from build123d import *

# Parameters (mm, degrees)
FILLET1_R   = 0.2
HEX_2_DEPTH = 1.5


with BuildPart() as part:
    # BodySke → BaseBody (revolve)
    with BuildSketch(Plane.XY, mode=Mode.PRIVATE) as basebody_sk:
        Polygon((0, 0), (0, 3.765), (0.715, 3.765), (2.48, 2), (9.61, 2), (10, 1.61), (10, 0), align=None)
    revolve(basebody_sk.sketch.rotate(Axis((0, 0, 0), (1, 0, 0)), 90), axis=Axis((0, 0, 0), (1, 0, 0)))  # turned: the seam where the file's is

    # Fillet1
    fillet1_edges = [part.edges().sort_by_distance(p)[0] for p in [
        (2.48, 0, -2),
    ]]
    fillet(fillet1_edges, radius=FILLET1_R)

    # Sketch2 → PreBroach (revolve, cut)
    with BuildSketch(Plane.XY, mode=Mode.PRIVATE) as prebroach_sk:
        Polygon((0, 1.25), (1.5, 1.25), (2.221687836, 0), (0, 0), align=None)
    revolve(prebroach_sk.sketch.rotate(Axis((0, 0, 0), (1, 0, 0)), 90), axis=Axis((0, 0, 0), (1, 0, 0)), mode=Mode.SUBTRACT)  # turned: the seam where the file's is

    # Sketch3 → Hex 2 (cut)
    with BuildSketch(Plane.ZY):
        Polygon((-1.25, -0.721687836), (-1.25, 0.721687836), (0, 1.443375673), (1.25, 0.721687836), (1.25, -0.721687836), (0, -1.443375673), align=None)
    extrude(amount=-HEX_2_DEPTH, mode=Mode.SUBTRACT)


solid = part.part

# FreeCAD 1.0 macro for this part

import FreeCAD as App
import Part
import Sketcher

V = App.Vector
Q = App.Units.Quantity


def edges_at(feature, points):
    """Names of the edges that pass closest to the given points."""
    edges = feature.Shape.Edges
    near = lambda p: min(range(len(edges)), key=lambda i: edges[i].distToShape(Part.Vertex(*p))[0])
    return sorted({f"Edge{near(p) + 1}" for p in points})


def add_polygon(sketch, points):
    """Adds a closed chain of lines whose ends are joined by coincident constraints."""
    first, n = sketch.GeometryCount, len(points)
    for a, b in zip(points, points[1:] + points[:1]):
        sketch.addGeometry(Part.LineSegment(App.Vector(*a, 0), App.Vector(*b, 0)), False)
    for i in range(n):
        sketch.addConstraint(Sketcher.Constraint("Coincident", first + i, 2, first + (i + 1) % n, 1))

doc = App.newDocument("Part")
body = doc.addObject("PartDesign::Body", "Body")

# Sketch on XY plane
sketch1 = doc.addObject("Sketcher::SketchObject", "Sketch")
body.addObject(sketch1)
sketch1.AttachmentSupport = (doc.XY_Plane, [""])
sketch1.MapMode = "FlatFace"
add_polygon(sketch1, [(0, 3.8), (0, 0), (10, 0), (10, 1.6), (9.6, 2), (2.5, 2), (0.7, 3.8)])  # lines 0-6
sketch1.addConstraint(Sketcher.Constraint("Vertical", 0))
sketch1.addConstraint(Sketcher.Constraint("Horizontal", 1))
sketch1.addConstraint(Sketcher.Constraint("Vertical", 2))
sketch1.addConstraint(Sketcher.Constraint("Horizontal", 4))
sketch1.addConstraint(Sketcher.Constraint("Horizontal", 6))
sketch1.addConstraint(Sketcher.Constraint("Coincident", 0, 2, -1, 1))
sketch1.addConstraint(Sketcher.Constraint("Parallel", 3, 5))
sketch1.addConstraint(Sketcher.Constraint("DistanceX", 1, 1, 1, 2, Q("10 mm")))
sketch1.addConstraint(Sketcher.Constraint("Angle", 3, Q("135 deg")))
sketch1.addConstraint(Sketcher.Constraint("DistanceY", -1, 1, 3, 2, Q("2 mm")))
sketch1.addConstraint(Sketcher.Constraint("DistanceX", 4, 2, 4, 1, Q("7.13 mm")))
sketch1.addConstraint(Sketcher.Constraint("DistanceY", 2, 1, 2, 2, Q("1.61 mm")))
sketch1.addConstraint(Sketcher.Constraint("DistanceX", 6, 2, 6, 1, Q("0.715 mm")))
revolution = doc.addObject("PartDesign::Revolution", "Revolution")
body.addObject(revolution)
revolution.Profile = sketch1
revolution.ReferenceAxis = (sketch1, ["H_Axis"])
revolution.Angle = 360
doc.recompute()

fillet = doc.addObject("PartDesign::Fillet", "Fillet")
body.addObject(fillet)
fillet.Base = (revolution, edges_at(revolution, [(2.48, 0, -2)]))
fillet.Radius = 0.2

# Sketch on XY plane
sketch2 = doc.addObject("Sketcher::SketchObject", "Sketch001")
body.addObject(sketch2)
sketch2.AttachmentSupport = (doc.XY_Plane, [""])
sketch2.MapMode = "FlatFace"
add_polygon(sketch2, [(1.5, 1.2), (0, 1.2), (0, 0), (2.2, 0)])  # lines 0-3
sketch2.addConstraint(Sketcher.Constraint("Horizontal", 0))
sketch2.addConstraint(Sketcher.Constraint("Vertical", 1))
sketch2.addConstraint(Sketcher.Constraint("Horizontal", 2))
sketch2.addConstraint(Sketcher.Constraint("Coincident", 1, 2, -1, 1))
sketch2.addConstraint(Sketcher.Constraint("Angle", 3, Q("120 deg")))
sketch2.addConstraint(Sketcher.Constraint("DistanceX", 0, 2, 0, 1, Q("1.5 mm")))
sketch2.addConstraint(Sketcher.Constraint("DistanceY", 1, 2, 1, 1, Q("1.25 mm")))
groove = doc.addObject("PartDesign::Groove", "Groove")
body.addObject(groove)
groove.Profile = sketch2
groove.ReferenceAxis = (sketch2, ["H_Axis"])
groove.Angle = 360

# Sketch on YZ plane
sketch3 = doc.addObject("Sketcher::SketchObject", "Sketch002")
body.addObject(sketch3)
sketch3.AttachmentSupport = (doc.YZ_Plane, [""])
sketch3.MapMode = "FlatFace"
add_polygon(sketch3, [(0.7, -1.2), (-0.7, -1.2), (-1.4, 0), (-0.7, 1.2), (0.7, 1.2), (1.4, 0)])  # lines 0-5
sketch3.addConstraint(Sketcher.Constraint("Horizontal", 0))
sketch3.addConstraint(Sketcher.Constraint("Horizontal", 3))
sketch3.addConstraint(Sketcher.Constraint("Symmetric", 0, 2, 3, 2, -1, 1))
sketch3.addConstraint(Sketcher.Constraint("Symmetric", 1, 2, 4, 2, -1, 1))
sketch3.addConstraint(Sketcher.Constraint("PointOnObject", 1, 2, -1))
sketch3.addConstraint(Sketcher.Constraint("Parallel", 2, 5))
sketch3.addConstraint(Sketcher.Constraint("Vertical", 0, 2, 2, 2))
sketch3.addConstraint(Sketcher.Constraint("Angle", 1, Q("120 deg")))
sketch3.addConstraint(Sketcher.Constraint("DistanceY", 0, 2, 2, 2, Q("2.5 mm")))
sketch3.addConstraint(Sketcher.Constraint("DistanceX", 0, 2, 0, 1, Q("1.443376 mm")))
pocket1 = doc.addObject("PartDesign::Pocket", "Pocket")
body.addObject(pocket1)
pocket1.Profile = sketch3
pocket1.Length = 1.5
pocket1.Reversed = True

doc.recompute()
